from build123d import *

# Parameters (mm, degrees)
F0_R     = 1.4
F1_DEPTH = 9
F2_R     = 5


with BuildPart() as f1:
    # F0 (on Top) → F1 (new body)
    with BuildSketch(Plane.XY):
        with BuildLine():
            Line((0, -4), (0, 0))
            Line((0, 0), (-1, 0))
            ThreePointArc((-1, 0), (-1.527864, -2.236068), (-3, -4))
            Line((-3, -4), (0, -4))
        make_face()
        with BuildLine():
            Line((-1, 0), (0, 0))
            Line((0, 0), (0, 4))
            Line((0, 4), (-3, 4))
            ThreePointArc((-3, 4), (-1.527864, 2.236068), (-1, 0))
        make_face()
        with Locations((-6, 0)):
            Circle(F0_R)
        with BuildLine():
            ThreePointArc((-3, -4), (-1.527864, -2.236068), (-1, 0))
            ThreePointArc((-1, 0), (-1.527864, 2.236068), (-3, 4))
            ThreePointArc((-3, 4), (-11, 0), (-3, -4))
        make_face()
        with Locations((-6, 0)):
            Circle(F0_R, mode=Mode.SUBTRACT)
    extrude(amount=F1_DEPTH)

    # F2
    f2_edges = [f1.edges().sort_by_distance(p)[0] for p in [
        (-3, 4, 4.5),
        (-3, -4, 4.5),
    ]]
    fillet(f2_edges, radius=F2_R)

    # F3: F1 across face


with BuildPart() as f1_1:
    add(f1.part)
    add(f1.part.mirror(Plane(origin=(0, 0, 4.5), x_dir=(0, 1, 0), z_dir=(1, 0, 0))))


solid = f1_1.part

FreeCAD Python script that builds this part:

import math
import FreeCAD as App
import Part
import Sketcher
from FreeCAD import Vector
Q = App.Units.Quantity


def edges_at(feature, points):
    """Names of the edges that pass closest to the given points."""
    edges = feature.Shape.Edges
    near = lambda p: min(range(len(edges)), key=lambda i: edges[i].distToShape(Part.Vertex(*p))[0])
    return sorted({f"Edge{near(p) + 1}" for p in points})

doc = App.newDocument("Part")
body = doc.addObject("PartDesign::Body", "Body")

# Sketch on XY plane
sketch1 = doc.addObject("Sketcher::SketchObject", "Sketch")
body.addObject(sketch1)
sketch1.AttachmentSupport = (doc.XY_Plane, [""])
sketch1.MapMode = "FlatFace"
sketch1.addGeometry(Part.LineSegment(Vector(0, -4, 0), Vector(0, 4, 0)), False)
sketch1.addGeometry(Part.LineSegment(Vector(0, 4, 0), Vector(-3, 4, 0)), False)
sketch1.addGeometry(Part.ArcOfCircle(Part.Circle(Vector(-6, 0, 0), Vector(0, 0, 1), 5), math.radians(53), math.radians(307)), False)
sketch1.addGeometry(Part.LineSegment(Vector(-3, -4, 0), Vector(0, -4, 0)), False)
sketch1.addGeometry(Part.Circle(Vector(-6, 0, 0), Vector(0, 0, 1), 1.4), False)
sketch1.addConstraint(Sketcher.Constraint("Coincident", 0, 2, 1, 1))
sketch1.addConstraint(Sketcher.Constraint("Coincident", 1, 2, 2, 1))
sketch1.addConstraint(Sketcher.Constraint("Coincident", 2, 2, 3, 1))
sketch1.addConstraint(Sketcher.Constraint("Coincident", 3, 2, 0, 1))
sketch1.addConstraint(Sketcher.Constraint("Vertical", 0))
sketch1.addConstraint(Sketcher.Constraint("Horizontal", 1))
sketch1.addConstraint(Sketcher.Constraint("Horizontal", 3))
sketch1.addConstraint(Sketcher.Constraint("Coincident", 4, 3, 2, 3))
sketch1.addConstraint(Sketcher.Constraint("Symmetric", 0, 2, 3, 2, -1, 1))
sketch1.addConstraint(Sketcher.Constraint("PointOnObject", 2, 3, -1))
sketch1.addConstraint(Sketcher.Constraint("Radius", 2, Q("5 mm")))
sketch1.addConstraint(Sketcher.Constraint("Diameter", 4, Q("2.8 mm")))
sketch1.addConstraint(Sketcher.Constraint("DistanceX", 1, 2, 1, 1, Q("3 mm")))
sketch1.addConstraint(Sketcher.Constraint("DistanceY", 0, 1, 0, 2, Q("8 mm")))
pad1 = doc.addObject("PartDesign::Pad", "Pad")
body.addObject(pad1)
pad1.Profile = sketch1
pad1.Length = 9
doc.recompute()

fillet = doc.addObject("PartDesign::Fillet", "Fillet")
body.addObject(fillet)
fillet.Base = (pad1, edges_at(pad1, [(-3, 4, 4.5), (-3, -4, 4.5)]))
fillet.Radius = 5
body2 = doc.addObject("PartDesign::Body", "Body001")
doc.recompute()

body2.BaseFeature = body
doc.recompute()

mirroring = doc.addObject("Part::Mirroring", "Mirroring")
mirroring.Source = body
mirroring.Base = Vector(0, 0, 4.5)
mirroring.Normal = Vector(1, 0, 0)
body3 = doc.addObject("PartDesign::Body", "Body002")
body3.BaseFeature = mirroring
boolean = doc.addObject("PartDesign::Boolean", "Boolean")
body2.addObject(boolean)
boolean.Type = "Fuse"
boolean.addObjects([body3])
doc.recompute()
mirroring.Visibility = False

doc.recompute()
